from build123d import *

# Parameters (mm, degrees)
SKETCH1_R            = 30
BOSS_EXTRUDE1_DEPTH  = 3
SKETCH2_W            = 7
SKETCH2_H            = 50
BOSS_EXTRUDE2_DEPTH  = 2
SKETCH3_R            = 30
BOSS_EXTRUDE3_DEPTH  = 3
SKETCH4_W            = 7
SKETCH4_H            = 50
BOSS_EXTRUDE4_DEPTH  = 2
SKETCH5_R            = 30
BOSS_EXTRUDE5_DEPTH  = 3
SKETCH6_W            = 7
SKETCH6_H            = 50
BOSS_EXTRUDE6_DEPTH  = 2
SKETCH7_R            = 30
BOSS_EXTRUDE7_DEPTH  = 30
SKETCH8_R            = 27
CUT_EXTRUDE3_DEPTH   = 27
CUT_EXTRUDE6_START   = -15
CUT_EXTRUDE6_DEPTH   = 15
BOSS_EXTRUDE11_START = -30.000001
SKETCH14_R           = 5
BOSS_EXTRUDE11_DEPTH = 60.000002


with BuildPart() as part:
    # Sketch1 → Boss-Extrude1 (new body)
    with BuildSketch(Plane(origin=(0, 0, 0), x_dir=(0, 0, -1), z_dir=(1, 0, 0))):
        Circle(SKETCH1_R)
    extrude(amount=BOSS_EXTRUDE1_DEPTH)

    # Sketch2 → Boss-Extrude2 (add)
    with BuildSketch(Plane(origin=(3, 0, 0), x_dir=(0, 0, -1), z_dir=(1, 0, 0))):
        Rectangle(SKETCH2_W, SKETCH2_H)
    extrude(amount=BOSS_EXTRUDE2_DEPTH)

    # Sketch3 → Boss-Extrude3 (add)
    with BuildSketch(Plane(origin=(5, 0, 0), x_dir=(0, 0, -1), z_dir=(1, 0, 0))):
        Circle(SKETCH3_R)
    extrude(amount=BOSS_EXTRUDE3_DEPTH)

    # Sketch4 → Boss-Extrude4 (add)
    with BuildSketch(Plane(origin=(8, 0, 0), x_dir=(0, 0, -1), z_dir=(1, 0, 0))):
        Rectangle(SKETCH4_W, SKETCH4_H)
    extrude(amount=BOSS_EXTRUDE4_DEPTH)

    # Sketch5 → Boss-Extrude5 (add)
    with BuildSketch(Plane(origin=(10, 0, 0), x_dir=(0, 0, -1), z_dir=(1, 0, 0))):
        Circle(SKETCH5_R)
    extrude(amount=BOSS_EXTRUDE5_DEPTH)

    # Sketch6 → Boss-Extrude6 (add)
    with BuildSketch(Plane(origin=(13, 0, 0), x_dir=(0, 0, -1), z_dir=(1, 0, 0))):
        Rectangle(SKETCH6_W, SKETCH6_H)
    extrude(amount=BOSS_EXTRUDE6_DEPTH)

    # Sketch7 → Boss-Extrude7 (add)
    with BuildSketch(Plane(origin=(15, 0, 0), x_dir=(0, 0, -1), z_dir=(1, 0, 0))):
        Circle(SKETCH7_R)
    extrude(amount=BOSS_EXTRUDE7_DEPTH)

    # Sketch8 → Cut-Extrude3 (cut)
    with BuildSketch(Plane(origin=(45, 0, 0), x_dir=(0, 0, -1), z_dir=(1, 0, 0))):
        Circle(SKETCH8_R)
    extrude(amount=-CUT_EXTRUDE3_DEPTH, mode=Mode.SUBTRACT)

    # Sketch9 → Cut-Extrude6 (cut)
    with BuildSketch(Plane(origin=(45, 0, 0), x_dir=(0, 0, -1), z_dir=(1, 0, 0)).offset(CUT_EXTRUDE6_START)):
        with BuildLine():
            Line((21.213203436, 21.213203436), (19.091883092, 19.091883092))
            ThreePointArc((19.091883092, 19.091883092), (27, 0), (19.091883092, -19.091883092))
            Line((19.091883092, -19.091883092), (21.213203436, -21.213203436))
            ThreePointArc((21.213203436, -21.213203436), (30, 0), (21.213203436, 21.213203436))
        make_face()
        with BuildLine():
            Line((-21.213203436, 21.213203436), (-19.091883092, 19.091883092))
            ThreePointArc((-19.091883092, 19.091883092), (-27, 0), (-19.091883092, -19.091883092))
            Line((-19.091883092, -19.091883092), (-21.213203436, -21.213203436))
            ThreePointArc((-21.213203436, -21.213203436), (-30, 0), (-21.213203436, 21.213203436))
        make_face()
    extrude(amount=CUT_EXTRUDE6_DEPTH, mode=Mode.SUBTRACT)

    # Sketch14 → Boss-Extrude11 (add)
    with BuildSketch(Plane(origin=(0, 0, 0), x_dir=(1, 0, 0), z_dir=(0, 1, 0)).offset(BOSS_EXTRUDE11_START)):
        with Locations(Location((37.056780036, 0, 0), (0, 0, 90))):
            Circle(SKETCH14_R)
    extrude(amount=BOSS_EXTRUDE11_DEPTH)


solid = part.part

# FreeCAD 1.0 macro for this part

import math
import FreeCAD as App
import Part
import Sketcher


def add_polygon(sketch, points):
    """Adds a closed chain of lines whose ends are joined by coincident constraints."""
    first, n = sketch.GeometryCount, len(points)
    for a, b in zip(points, points[1:] + points[:1]):
        sketch.addGeometry(Part.LineSegment(App.Vector(*a, 0), App.Vector(*b, 0)), False)
    for i in range(n):
        sketch.addConstraint(Sketcher.Constraint("Coincident", first + i, 2, first + (i + 1) % n, 1))

doc = App.newDocument("Part")
body = doc.addObject("PartDesign::Body", "Body")

# Sketch on YZ plane
sketch1 = doc.addObject("Sketcher::SketchObject", "Sketch")
body.addObject(sketch1)
sketch1.AttachmentSupport = (doc.YZ_Plane, [""])
sketch1.MapMode = "FlatFace"
sketch1.addGeometry(Part.Circle(App.Vector(0, 0, 0), App.Vector(0, 0, 1), 30), False)
sketch1.addConstraint([
    Sketcher.Constraint("Coincident", 0, 3, -1, 1),
    Sketcher.Constraint("Diameter", 0, 60.0),
])
pad1 = doc.addObject("PartDesign::Pad", "Pad")
body.addObject(pad1)
pad1.Profile = sketch1
pad1.Length = 3

# Sketch on YZ plane
sketch2 = doc.addObject("Sketcher::SketchObject", "Sketch001")
body.addObject(sketch2)
sketch2.AttachmentSupport = (doc.YZ_Plane, [""])
sketch2.MapMode = "FlatFace"
sketch2.AttachmentOffset = App.Placement(App.Vector(0, 0, 3), App.Rotation())
add_polygon(sketch2, [(25, 4), (-25, 4), (-25, -4), (25, -4)])  # lines 0-3
sketch2.addConstraint([
    Sketcher.Constraint("Horizontal", 0),
    Sketcher.Constraint("Vertical", 1),
    Sketcher.Constraint("Horizontal", 2),
    Sketcher.Constraint("Vertical", 3),
    Sketcher.Constraint("Symmetric", 0, 2, 2, 2, -1, 1),
    Sketcher.Constraint("DistanceX", 0, 2, 0, 1, 50.0),
    Sketcher.Constraint("DistanceY", 1, 2, 1, 1, 7.0),
])
pad2 = doc.addObject("PartDesign::Pad", "Pad001")
body.addObject(pad2)
pad2.Profile = sketch2
pad2.Length = 2

# Sketch on YZ plane
sketch3 = doc.addObject("Sketcher::SketchObject", "Sketch002")
body.addObject(sketch3)
sketch3.AttachmentSupport = (doc.YZ_Plane, [""])
sketch3.MapMode = "FlatFace"
sketch3.AttachmentOffset = App.Placement(App.Vector(0, 0, 5), App.Rotation())
sketch3.addGeometry(Part.Circle(App.Vector(0, 0, 0), App.Vector(0, 0, 1), 30), False)
sketch3.addConstraint([
    Sketcher.Constraint("Coincident", 0, 3, -1, 1),
    Sketcher.Constraint("Diameter", 0, 60.0),
])
pad3 = doc.addObject("PartDesign::Pad", "Pad002")
body.addObject(pad3)
pad3.Profile = sketch3
pad3.Length = 3

# Sketch on YZ plane
sketch4 = doc.addObject("Sketcher::SketchObject", "Sketch003")
body.addObject(sketch4)
sketch4.AttachmentSupport = (doc.YZ_Plane, [""])
sketch4.MapMode = "FlatFace"
sketch4.AttachmentOffset = App.Placement(App.Vector(0, 0, 8), App.Rotation())
add_polygon(sketch4, [(25, 4), (-25, 4), (-25, -4), (25, -4)])  # lines 0-3
sketch4.addConstraint([
    Sketcher.Constraint("Horizontal", 0),
    Sketcher.Constraint("Vertical", 1),
    Sketcher.Constraint("Horizontal", 2),
    Sketcher.Constraint("Vertical", 3),
    Sketcher.Constraint("Symmetric", 0, 2, 2, 2, -1, 1),
    Sketcher.Constraint("DistanceX", 0, 2, 0, 1, 50.0),
    Sketcher.Constraint("DistanceY", 1, 2, 1, 1, 7.0),
])
pad4 = doc.addObject("PartDesign::Pad", "Pad003")
body.addObject(pad4)
pad4.Profile = sketch4
pad4.Length = 2

# Sketch on YZ plane
sketch5 = doc.addObject("Sketcher::SketchObject", "Sketch004")
body.addObject(sketch5)
sketch5.AttachmentSupport = (doc.YZ_Plane, [""])
sketch5.MapMode = "FlatFace"
sketch5.AttachmentOffset = App.Placement(App.Vector(0, 0, 10), App.Rotation())
sketch5.addGeometry(Part.Circle(App.Vector(0, 0, 0), App.Vector(0, 0, 1), 30), False)
sketch5.addConstraint([
    Sketcher.Constraint("Coincident", 0, 3, -1, 1),
    Sketcher.Constraint("Diameter", 0, 60.0),
])
pad5 = doc.addObject("PartDesign::Pad", "Pad004")
body.addObject(pad5)
pad5.Profile = sketch5
pad5.Length = 3

# Sketch on YZ plane
sketch6 = doc.addObject("Sketcher::SketchObject", "Sketch005")
body.addObject(sketch6)
sketch6.AttachmentSupport = (doc.YZ_Plane, [""])
sketch6.MapMode = "FlatFace"
sketch6.AttachmentOffset = App.Placement(App.Vector(0, 0, 13), App.Rotation())
add_polygon(sketch6, [(25, 4), (-25, 4), (-25, -4), (25, -4)])  # lines 0-3
sketch6.addConstraint([
    Sketcher.Constraint("Horizontal", 0),
    Sketcher.Constraint("Vertical", 1),
    Sketcher.Constraint("Horizontal", 2),
    Sketcher.Constraint("Vertical", 3),
    Sketcher.Constraint("Symmetric", 0, 2, 2, 2, -1, 1),
    Sketcher.Constraint("DistanceX", 0, 2, 0, 1, 50.0),
    Sketcher.Constraint("DistanceY", 1, 2, 1, 1, 7.0),
])
pad6 = doc.addObject("PartDesign::Pad", "Pad005")
body.addObject(pad6)
pad6.Profile = sketch6
pad6.Length = 2

# Sketch on YZ plane
sketch7 = doc.addObject("Sketcher::SketchObject", "Sketch006")
body.addObject(sketch7)
sketch7.AttachmentSupport = (doc.YZ_Plane, [""])
sketch7.MapMode = "FlatFace"
sketch7.AttachmentOffset = App.Placement(App.Vector(0, 0, 15), App.Rotation())
sketch7.addGeometry(Part.Circle(App.Vector(0, 0, 0), App.Vector(0, 0, 1), 30), False)
sketch7.addConstraint([
    Sketcher.Constraint("Coincident", 0, 3, -1, 1),
    Sketcher.Constraint("Diameter", 0, 60.0),
])
pad7 = doc.addObject("PartDesign::Pad", "Pad006")
body.addObject(pad7)
pad7.Profile = sketch7
pad7.Length = 30

# Sketch on YZ plane
sketch8 = doc.addObject("Sketcher::SketchObject", "Sketch007")
body.addObject(sketch8)
sketch8.AttachmentSupport = (doc.YZ_Plane, [""])
sketch8.MapMode = "FlatFace"
sketch8.AttachmentOffset = App.Placement(App.Vector(0, 0, 45), App.Rotation())
sketch8.addGeometry(Part.Circle(App.Vector(0, 0, 0), App.Vector(0, 0, 1), 27), False)
sketch8.addConstraint([
    Sketcher.Constraint("Coincident", 0, 3, -1, 1),
    Sketcher.Constraint("Diameter", 0, 54.0),
])
pocket1 = doc.addObject("PartDesign::Pocket", "Pocket")
body.addObject(pocket1)
pocket1.Profile = sketch8
pocket1.Length = 27

# Sketch on YZ plane
sketch9 = doc.addObject("Sketcher::SketchObject", "Sketch008")
body.addObject(sketch9)
sketch9.AttachmentSupport = (doc.YZ_Plane, [""])
sketch9.MapMode = "FlatFace"
sketch9.AttachmentOffset = App.Placement(App.Vector(0, 0, 30), App.Rotation())
sketch9.addGeometry([
    Part.LineSegment(App.Vector(21.2, -21.2, 0), App.Vector(19.1, -19.1, 0)),  # 0
    Part.ArcOfCircle(Part.Circle(App.Vector(0, 0, 0), App.Vector(0, 0, 1), 27), math.radians(-135), math.radians(-45)),  # 1
    Part.LineSegment(App.Vector(-19.1, -19.1, 0), App.Vector(-21.2, -21.2, 0)),  # 2
    Part.ArcOfCircle(Part.Circle(App.Vector(0, 0, 0), App.Vector(0, 0, 1), 30), math.radians(-135), math.radians(-45)),  # 3
    Part.LineSegment(App.Vector(19.1, 19.1, 0), App.Vector(21.2, 21.2, 0)),  # 4
    Part.ArcOfCircle(Part.Circle(App.Vector(0, 0, 0), App.Vector(0, 0, 1), 30), math.radians(45), math.radians(135)),  # 5
    Part.LineSegment(App.Vector(-21.2, 21.2, 0), App.Vector(-19.1, 19.1, 0)),  # 6
    Part.ArcOfCircle(Part.Circle(App.Vector(0, 0, 0), App.Vector(0, 0, 1), 27), math.radians(45), math.radians(135)),  # 7
], False)
sketch9.addConstraint([
    Sketcher.Constraint("Coincident", 0, 2, 1, 2),
    Sketcher.Constraint("Coincident", 1, 1, 2, 1),
    Sketcher.Constraint("Coincident", 2, 2, 3, 1),
    Sketcher.Constraint("Coincident", 3, 2, 0, 1),
    Sketcher.Constraint("Coincident", 4, 2, 5, 1),
    Sketcher.Constraint("Coincident", 5, 2, 6, 1),
    Sketcher.Constraint("Coincident", 6, 2, 7, 2),
    Sketcher.Constraint("Coincident", 7, 1, 4, 1),
    Sketcher.Constraint("Coincident", 1, 3, -1, 1),
    Sketcher.Constraint("Coincident", 3, 3, -1, 1),
    Sketcher.Constraint("Coincident", 5, 3, -1, 1),
    Sketcher.Constraint("Coincident", 7, 3, -1, 1),
    Sketcher.Constraint("Equal", 3, 5),
    Sketcher.Constraint("Equal", 1, 7),
    Sketcher.Constraint("Perpendicular", 0, 2),
    Sketcher.Constraint("Parallel", 2, 4),
    Sketcher.Constraint("Perpendicular", 4, 6),
    Sketcher.Constraint("Horizontal", 0, 2, 1, 1),
    Sketcher.Constraint("Horizontal", 2, 2, 3, 2),
    Sketcher.Constraint("Horizontal", 4, 2, 5, 2),
    Sketcher.Constraint("Vertical", 3, 2, 4, 2),
    Sketcher.Constraint("Radius", 1, 27.0),
    Sketcher.Constraint("Radius", 3, 30.0),
    Sketcher.Constraint("DistanceX", -1, 1, 0, 2, 19.091883),
])
pocket2 = doc.addObject("PartDesign::Pocket", "Pocket001")
body.addObject(pocket2)
pocket2.Profile = sketch9
pocket2.Length = 15
pocket2.Reversed = True

# Sketch on XZ plane
sketch10 = doc.addObject("Sketcher::SketchObject", "Sketch009")
body.addObject(sketch10)
sketch10.AttachmentSupport = (doc.XZ_Plane, [""])
sketch10.MapMode = "FlatFace"
sketch10.AttachmentOffset = App.Placement(App.Vector(0, 0, 30.000001), App.Rotation())
sketch10.addGeometry(Part.Circle(App.Vector(37, 0, 0), App.Vector(0, 0, 1), 5), False)
sketch10.addConstraint([
    Sketcher.Constraint("PointOnObject", 0, 3, -1),
    Sketcher.Constraint("Diameter", 0, 10.0),
    Sketcher.Constraint("DistanceX", -1, 1, 0, 3, 37.05678),
])
pad8 = doc.addObject("PartDesign::Pad", "Pad007")
body.addObject(pad8)
pad8.Profile = sketch10
pad8.Length = 60.000002
pad8.Reversed = True

doc.recompute()
